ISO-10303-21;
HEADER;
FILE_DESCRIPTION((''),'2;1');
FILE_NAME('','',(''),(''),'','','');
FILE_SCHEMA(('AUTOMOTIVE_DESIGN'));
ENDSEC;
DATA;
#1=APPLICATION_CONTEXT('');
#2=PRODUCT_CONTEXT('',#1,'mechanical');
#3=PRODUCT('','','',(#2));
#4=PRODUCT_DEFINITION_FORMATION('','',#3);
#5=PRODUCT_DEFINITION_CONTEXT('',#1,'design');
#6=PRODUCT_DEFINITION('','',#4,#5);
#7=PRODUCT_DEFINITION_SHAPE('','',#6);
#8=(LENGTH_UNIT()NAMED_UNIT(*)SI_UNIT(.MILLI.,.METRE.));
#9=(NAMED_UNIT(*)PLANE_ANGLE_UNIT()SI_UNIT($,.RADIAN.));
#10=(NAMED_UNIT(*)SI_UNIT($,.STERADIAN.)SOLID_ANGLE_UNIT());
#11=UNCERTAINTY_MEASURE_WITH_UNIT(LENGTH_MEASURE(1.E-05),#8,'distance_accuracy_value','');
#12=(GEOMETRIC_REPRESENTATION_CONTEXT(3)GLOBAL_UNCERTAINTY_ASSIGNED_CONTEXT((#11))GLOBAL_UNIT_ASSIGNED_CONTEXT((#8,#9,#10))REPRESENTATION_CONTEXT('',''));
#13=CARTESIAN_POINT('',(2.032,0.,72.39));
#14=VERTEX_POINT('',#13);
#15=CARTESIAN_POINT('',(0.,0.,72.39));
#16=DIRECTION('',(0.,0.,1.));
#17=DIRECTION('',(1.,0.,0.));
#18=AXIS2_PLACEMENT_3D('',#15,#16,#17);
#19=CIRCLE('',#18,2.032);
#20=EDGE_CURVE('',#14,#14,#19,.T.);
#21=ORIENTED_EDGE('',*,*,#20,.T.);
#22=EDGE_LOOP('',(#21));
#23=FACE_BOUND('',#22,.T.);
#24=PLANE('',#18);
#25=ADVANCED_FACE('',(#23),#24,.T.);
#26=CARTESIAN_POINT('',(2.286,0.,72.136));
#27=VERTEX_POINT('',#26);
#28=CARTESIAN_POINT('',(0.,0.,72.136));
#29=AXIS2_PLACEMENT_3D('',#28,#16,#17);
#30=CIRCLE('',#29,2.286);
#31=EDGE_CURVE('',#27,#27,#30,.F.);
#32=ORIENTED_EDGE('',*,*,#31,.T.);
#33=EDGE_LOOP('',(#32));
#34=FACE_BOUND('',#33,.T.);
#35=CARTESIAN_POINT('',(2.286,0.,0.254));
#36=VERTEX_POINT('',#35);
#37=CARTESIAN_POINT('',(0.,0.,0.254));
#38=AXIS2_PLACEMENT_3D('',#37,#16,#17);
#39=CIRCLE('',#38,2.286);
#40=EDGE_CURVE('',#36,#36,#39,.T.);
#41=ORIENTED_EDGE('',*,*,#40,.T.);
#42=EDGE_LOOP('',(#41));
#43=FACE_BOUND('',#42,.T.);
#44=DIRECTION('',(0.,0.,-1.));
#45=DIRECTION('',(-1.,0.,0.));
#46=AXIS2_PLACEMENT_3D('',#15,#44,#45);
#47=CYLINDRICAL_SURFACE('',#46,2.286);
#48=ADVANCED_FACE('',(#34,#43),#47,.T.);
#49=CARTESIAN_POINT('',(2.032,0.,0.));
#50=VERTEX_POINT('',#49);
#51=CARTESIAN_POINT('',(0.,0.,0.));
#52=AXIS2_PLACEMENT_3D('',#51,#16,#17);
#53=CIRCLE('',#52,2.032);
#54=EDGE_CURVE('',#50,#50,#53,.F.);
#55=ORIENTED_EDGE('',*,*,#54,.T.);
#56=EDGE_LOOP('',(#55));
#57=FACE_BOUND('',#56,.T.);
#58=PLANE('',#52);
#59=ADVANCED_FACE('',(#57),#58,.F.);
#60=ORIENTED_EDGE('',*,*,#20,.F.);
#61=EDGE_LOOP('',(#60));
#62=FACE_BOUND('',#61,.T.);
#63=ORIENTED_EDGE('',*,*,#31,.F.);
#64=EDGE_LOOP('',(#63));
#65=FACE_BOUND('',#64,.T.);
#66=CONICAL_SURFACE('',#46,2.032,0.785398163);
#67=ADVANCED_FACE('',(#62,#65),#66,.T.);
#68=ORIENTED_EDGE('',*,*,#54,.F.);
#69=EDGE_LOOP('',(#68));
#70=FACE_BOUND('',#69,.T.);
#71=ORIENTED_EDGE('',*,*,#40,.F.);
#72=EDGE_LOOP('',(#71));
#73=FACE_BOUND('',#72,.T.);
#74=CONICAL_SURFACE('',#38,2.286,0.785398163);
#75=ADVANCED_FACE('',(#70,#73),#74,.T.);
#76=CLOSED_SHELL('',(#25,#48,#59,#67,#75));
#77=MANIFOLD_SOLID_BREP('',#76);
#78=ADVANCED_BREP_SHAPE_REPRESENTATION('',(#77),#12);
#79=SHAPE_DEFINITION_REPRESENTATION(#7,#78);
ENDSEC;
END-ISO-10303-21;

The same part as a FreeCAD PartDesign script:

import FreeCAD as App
import Part
import Sketcher
Q = App.Units.Quantity


def edges_at(feature, points):
    """Names of the edges that pass closest to the given points."""
    edges = feature.Shape.Edges
    near = lambda p: min(range(len(edges)), key=lambda i: edges[i].distToShape(Part.Vertex(*p))[0])
    return sorted({f"Edge{near(p) + 1}" for p in points})

doc = App.newDocument("Part")
body = doc.addObject("PartDesign::Body", "Body")

# Sketch on XY plane
sketch1 = body.newObject("Sketcher::SketchObject", "Sketch")
sketch1.AttachmentSupport = (doc.getObject("XY_Plane"), [""])
sketch1.MapMode = "FlatFace"
sketch1.addGeometry(Part.Circle(App.Vector(0, 0, 0), App.Vector(0, 0, 1), 2.286), False)
sketch1.addConstraint([
    Sketcher.Constraint("Coincident", 0, 3, -1, 1),
    Sketcher.Constraint("Diameter", 0, Q("0.18 in")),
])
pad1 = body.newObject("PartDesign::Pad", "Pad")
pad1.Profile = sketch1
pad1.Length = Q("2.85 in")
doc.recompute()

chamfer = body.newObject("PartDesign::Chamfer", "Chamfer")
chamfer.Base = (pad1, edges_at(pad1, [(-2.286, 0, 0), (-2.286, 0, 72.39)]))
chamfer.Size = Q("0.01 in")

doc.recompute()
